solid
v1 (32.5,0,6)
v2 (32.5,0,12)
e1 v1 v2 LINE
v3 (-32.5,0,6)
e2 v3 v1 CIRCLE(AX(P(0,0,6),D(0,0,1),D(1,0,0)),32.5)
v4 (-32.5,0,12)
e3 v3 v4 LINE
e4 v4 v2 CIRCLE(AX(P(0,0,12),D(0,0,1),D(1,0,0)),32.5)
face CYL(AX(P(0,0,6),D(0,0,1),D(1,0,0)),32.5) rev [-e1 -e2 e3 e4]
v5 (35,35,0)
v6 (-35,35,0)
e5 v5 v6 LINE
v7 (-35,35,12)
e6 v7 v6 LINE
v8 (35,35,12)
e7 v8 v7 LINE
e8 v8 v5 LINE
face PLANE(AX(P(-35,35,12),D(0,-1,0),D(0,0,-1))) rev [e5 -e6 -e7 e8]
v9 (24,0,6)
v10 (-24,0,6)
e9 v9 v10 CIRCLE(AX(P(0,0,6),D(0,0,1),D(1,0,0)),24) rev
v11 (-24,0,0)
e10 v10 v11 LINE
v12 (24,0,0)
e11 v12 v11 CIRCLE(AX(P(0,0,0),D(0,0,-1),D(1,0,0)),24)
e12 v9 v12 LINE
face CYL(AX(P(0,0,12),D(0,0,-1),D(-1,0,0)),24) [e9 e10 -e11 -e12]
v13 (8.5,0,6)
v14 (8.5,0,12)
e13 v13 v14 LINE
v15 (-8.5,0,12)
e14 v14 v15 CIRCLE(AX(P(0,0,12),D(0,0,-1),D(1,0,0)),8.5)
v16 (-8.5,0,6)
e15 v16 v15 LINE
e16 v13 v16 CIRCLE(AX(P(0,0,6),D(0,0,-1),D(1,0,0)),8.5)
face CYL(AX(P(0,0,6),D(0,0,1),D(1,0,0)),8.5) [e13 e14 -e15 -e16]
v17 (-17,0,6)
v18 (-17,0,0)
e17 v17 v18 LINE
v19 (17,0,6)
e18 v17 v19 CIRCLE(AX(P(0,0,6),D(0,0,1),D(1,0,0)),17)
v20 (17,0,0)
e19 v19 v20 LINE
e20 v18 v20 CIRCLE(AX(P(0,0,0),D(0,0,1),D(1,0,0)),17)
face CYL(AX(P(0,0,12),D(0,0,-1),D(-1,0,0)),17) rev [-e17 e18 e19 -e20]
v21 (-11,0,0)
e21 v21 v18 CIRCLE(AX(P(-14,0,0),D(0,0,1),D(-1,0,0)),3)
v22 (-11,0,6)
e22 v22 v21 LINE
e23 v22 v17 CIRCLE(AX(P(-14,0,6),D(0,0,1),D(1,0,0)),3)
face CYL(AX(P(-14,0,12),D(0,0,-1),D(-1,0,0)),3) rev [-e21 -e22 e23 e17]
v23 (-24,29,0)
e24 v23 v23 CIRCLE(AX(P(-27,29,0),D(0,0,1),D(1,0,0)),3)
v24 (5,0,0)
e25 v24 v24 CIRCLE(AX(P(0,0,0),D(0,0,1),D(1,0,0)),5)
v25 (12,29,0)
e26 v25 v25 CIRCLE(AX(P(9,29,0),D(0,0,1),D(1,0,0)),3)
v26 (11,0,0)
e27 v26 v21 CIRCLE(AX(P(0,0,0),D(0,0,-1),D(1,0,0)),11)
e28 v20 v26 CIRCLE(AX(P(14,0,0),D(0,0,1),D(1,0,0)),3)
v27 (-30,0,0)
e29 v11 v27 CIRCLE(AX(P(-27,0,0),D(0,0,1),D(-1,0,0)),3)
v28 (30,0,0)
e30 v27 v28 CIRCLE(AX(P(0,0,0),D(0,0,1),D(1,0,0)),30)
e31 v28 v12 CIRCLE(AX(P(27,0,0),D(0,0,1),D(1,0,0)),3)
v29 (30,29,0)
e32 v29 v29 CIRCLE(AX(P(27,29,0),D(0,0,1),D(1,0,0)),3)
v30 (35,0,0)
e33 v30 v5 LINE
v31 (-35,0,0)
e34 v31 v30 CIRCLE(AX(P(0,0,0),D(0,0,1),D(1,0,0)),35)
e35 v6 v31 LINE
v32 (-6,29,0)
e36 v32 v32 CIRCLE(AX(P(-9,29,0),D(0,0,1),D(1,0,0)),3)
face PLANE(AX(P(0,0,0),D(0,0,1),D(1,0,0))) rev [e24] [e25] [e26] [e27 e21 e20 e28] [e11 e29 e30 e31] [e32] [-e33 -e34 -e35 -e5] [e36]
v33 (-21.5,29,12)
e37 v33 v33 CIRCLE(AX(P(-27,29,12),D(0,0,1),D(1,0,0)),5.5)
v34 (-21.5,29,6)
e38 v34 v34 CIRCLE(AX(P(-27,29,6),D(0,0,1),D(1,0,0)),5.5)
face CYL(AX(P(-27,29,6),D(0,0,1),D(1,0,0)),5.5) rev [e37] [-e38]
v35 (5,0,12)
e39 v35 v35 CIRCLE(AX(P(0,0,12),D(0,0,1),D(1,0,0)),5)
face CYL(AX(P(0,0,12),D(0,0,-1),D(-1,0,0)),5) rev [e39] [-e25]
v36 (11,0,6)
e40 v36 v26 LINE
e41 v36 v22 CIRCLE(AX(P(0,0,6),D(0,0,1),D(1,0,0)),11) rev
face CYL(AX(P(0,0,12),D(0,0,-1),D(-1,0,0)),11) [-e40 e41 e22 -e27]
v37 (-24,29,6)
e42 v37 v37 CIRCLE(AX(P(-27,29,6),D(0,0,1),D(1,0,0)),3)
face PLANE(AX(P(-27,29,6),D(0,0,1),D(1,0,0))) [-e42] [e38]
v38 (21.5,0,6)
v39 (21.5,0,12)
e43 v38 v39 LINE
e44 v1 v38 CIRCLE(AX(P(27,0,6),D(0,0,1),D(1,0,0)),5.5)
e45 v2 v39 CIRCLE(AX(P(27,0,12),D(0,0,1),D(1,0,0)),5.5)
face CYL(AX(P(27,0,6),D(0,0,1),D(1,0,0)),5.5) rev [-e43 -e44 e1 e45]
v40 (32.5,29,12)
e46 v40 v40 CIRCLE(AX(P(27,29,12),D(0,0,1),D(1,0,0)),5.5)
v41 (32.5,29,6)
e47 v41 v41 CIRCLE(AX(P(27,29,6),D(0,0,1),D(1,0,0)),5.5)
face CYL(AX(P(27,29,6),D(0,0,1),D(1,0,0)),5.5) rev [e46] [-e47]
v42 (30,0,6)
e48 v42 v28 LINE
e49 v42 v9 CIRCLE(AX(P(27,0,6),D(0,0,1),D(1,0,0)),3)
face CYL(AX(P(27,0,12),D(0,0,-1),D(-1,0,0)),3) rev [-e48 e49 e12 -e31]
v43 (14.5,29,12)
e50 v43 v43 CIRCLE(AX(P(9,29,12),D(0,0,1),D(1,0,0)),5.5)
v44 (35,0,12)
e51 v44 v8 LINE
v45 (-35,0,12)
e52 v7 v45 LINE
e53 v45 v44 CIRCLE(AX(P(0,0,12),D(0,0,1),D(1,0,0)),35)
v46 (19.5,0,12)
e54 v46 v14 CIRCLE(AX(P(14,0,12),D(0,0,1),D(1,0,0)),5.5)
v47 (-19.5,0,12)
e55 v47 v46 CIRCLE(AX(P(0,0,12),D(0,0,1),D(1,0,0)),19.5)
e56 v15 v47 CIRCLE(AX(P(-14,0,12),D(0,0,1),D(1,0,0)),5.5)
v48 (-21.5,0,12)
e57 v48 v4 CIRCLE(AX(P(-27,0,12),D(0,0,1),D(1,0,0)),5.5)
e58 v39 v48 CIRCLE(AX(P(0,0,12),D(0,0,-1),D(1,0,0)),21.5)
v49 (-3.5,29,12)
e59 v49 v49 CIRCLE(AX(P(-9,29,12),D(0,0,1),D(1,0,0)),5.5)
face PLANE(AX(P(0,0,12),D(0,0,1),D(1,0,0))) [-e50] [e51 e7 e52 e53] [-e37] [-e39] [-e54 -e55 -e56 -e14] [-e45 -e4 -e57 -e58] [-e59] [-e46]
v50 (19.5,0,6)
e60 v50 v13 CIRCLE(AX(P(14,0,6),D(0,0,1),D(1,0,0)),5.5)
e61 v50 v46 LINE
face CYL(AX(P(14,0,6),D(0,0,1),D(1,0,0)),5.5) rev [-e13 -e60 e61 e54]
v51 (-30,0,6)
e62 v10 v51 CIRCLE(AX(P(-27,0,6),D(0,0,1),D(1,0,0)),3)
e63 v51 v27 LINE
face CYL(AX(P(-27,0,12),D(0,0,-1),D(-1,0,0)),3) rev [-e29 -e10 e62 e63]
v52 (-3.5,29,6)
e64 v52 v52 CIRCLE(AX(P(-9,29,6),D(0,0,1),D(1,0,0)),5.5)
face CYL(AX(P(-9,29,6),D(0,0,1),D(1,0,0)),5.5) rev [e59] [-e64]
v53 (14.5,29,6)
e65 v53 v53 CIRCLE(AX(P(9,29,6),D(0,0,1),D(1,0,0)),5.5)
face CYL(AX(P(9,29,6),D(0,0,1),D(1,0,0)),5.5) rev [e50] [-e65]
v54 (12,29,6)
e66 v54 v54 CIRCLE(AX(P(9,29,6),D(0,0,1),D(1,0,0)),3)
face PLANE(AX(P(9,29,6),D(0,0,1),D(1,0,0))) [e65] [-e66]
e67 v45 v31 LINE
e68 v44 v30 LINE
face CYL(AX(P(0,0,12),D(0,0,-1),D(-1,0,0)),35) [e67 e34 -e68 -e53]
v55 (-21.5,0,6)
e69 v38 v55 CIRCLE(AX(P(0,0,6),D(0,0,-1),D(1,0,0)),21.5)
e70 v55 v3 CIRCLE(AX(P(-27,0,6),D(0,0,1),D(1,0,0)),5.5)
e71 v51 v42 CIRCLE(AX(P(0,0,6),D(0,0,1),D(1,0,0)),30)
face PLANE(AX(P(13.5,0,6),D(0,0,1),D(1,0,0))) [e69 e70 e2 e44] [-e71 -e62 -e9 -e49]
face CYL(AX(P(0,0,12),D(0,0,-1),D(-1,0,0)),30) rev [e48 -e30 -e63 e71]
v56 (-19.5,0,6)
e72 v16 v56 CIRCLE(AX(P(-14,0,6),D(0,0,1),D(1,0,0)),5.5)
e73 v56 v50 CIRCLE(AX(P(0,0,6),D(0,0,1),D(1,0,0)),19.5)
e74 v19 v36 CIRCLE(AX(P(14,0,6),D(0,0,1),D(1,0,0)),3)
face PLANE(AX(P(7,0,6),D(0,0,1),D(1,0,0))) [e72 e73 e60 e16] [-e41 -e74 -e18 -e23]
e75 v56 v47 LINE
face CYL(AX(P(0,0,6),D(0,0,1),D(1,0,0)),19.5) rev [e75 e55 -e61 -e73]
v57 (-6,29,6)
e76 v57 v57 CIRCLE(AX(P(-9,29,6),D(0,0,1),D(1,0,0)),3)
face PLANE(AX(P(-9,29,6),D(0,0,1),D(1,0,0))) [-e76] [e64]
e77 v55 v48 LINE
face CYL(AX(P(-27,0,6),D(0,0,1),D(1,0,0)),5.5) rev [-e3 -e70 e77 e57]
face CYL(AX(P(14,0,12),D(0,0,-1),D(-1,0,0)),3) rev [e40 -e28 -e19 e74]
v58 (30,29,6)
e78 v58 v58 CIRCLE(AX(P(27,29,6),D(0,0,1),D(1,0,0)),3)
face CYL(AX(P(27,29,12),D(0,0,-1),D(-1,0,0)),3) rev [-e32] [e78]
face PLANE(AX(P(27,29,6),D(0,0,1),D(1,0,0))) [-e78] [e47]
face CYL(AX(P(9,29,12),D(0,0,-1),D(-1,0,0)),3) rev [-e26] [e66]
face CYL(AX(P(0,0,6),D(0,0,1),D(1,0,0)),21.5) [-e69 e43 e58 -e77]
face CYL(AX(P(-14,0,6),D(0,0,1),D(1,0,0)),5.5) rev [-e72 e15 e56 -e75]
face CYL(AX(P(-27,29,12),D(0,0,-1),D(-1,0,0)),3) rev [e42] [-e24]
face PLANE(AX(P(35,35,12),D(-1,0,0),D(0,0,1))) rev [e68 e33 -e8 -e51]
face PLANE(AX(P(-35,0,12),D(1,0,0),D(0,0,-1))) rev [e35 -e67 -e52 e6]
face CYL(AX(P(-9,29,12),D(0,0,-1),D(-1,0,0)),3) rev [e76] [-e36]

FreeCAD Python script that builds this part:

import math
import FreeCAD as App
import Part
import Sketcher

V = App.Vector

doc = App.newDocument("Part")
body = doc.addObject("PartDesign::Body", "Body")

# Sketch on XY plane
sketch1 = body.newObject("Sketcher::SketchObject", "Sketch")
sketch1.AttachmentSupport = (doc.getObject("XY_Plane"), [""])
sketch1.MapMode = "FlatFace"
sketch1.addGeometry(Part.LineSegment(V(-35, 35, 0), V(-35, 0, 0)), False)
sketch1.addGeometry(Part.ArcOfCircle(Part.Circle(V(0, 0, 0), V(0, 0, 1), 35), math.radians(180), math.radians(360)), False)
sketch1.addGeometry(Part.LineSegment(V(35, 0, 0), V(35, 35, 0)), False)
sketch1.addGeometry(Part.LineSegment(V(35, 35, 0), V(-35, 35, 0)), False)
sketch1.addGeometry(Part.ArcOfCircle(Part.Circle(V(0, 0, 0), V(0, 0, 1), 30), math.radians(180), math.radians(360)), False)
sketch1.addGeometry(Part.ArcOfCircle(Part.Circle(V(-27, 0, 0), V(0, 0, 1), 3), math.radians(0), math.radians(180)), False)
sketch1.addGeometry(Part.ArcOfCircle(Part.Circle(V(0, 0, 0), V(0, 0, 1), 24), math.radians(180), math.radians(360)), False)
sketch1.addGeometry(Part.ArcOfCircle(Part.Circle(V(27, 0, 0), V(0, 0, 1), 3), math.radians(0), math.radians(180)), False)
sketch1.addGeometry(Part.ArcOfCircle(Part.Circle(V(0, 0, 0), V(0, 0, 1), 17), math.radians(180), math.radians(360)), False)
sketch1.addGeometry(Part.ArcOfCircle(Part.Circle(V(-14, 0, 0), V(0, 0, 1), 3), math.radians(0), math.radians(180)), False)
sketch1.addGeometry(Part.ArcOfCircle(Part.Circle(V(0, 0, 0), V(0, 0, 1), 11), math.radians(180), math.radians(360)), False)
sketch1.addGeometry(Part.ArcOfCircle(Part.Circle(V(14, 0, 0), V(0, 0, 1), 3), math.radians(0), math.radians(180)), False)
sketch1.addGeometry(Part.Circle(V(0, 0, 0), V(0, 0, 1), 5), False)
sketch1.addGeometry(Part.Circle(V(27, 29, 0), V(0, 0, 1), 3), False)
sketch1.addGeometry(Part.Circle(V(9, 29, 0), V(0, 0, 1), 3), False)
sketch1.addGeometry(Part.Circle(V(-9, 29, 0), V(0, 0, 1), 3), False)
sketch1.addGeometry(Part.Circle(V(-27, 29, 0), V(0, 0, 1), 3), False)
sketch1.addConstraint(Sketcher.Constraint("Tangent", 0, 2, 1, 1))
sketch1.addConstraint(Sketcher.Constraint("Tangent", 1, 2, 2, 1))
sketch1.addConstraint(Sketcher.Constraint("Coincident", 2, 2, 3, 1))
sketch1.addConstraint(Sketcher.Constraint("Coincident", 3, 2, 0, 1))
sketch1.addConstraint(Sketcher.Constraint("Tangent", 4, 1, 5, 2))
sketch1.addConstraint(Sketcher.Constraint("Tangent", 5, 1, 6, 1))
sketch1.addConstraint(Sketcher.Constraint("Tangent", 6, 2, 7, 2))
sketch1.addConstraint(Sketcher.Constraint("Tangent", 7, 1, 4, 2))
sketch1.addConstraint(Sketcher.Constraint("Tangent", 8, 1, 9, 2))
sketch1.addConstraint(Sketcher.Constraint("Tangent", 9, 1, 10, 1))
sketch1.addConstraint(Sketcher.Constraint("Tangent", 10, 2, 11, 2))
sketch1.addConstraint(Sketcher.Constraint("Tangent", 11, 1, 8, 2))
sketch1.addConstraint(Sketcher.Constraint("Vertical", 0))
sketch1.addConstraint(Sketcher.Constraint("Vertical", 2))
sketch1.addConstraint(Sketcher.Constraint("Horizontal", 3))
sketch1.addConstraint(Sketcher.Constraint("Coincident", 1, 3, -1, 1))
sketch1.addConstraint(Sketcher.Constraint("Coincident", 4, 3, -1, 1))
sketch1.addConstraint(Sketcher.Constraint("Coincident", 6, 3, -1, 1))
sketch1.addConstraint(Sketcher.Constraint("Coincident", 8, 3, -1, 1))
sketch1.addConstraint(Sketcher.Constraint("Coincident", 10, 3, -1, 1))
sketch1.addConstraint(Sketcher.Constraint("Coincident", 12, 3, -1, 1))
sketch1.addConstraint(Sketcher.Constraint("Equal", 7, 9))
sketch1.addConstraint(Sketcher.Constraint("Equal", 11, 13))
sketch1.addConstraint(Sketcher.Constraint("Equal", 13, 14))
sketch1.addConstraint(Sketcher.Constraint("Equal", 14, 15))
sketch1.addConstraint(Sketcher.Constraint("Equal", 15, 16))
sketch1.addConstraint(Sketcher.Constraint("Symmetric", 14, 3, 15, 3, -2))
sketch1.addConstraint(Sketcher.Constraint("Symmetric", 13, 3, 16, 3, -2))
sketch1.addConstraint(Sketcher.Constraint("PointOnObject", 5, 3, -1))
sketch1.addConstraint(Sketcher.Constraint("PointOnObject", 7, 3, -1))
sketch1.addConstraint(Sketcher.Constraint("PointOnObject", 9, 3, -1))
sketch1.addConstraint(Sketcher.Constraint("PointOnObject", 11, 3, -1))
sketch1.addConstraint(Sketcher.Constraint("Horizontal", 13, 3, 14, 3))
sketch1.addConstraint(Sketcher.Constraint("Vertical", 7, 3, 13, 3))
sketch1.addConstraint(Sketcher.Constraint("Diameter", 12, 10.0))
sketch1.addConstraint(Sketcher.Constraint("Diameter", 13, 6.0))
sketch1.addConstraint(Sketcher.Constraint("Radius", 1, 35.0))
sketch1.addConstraint(Sketcher.Constraint("Radius", 4, 30.0))
sketch1.addConstraint(Sketcher.Constraint("Radius", 8, 17.0))
sketch1.addConstraint(Sketcher.Constraint("DistanceY", 0, 2, 0, 1, 35.0))
sketch1.addConstraint(Sketcher.Constraint("DistanceY", -1, 1, 13, 3, 29.0))
sketch1.addConstraint(Sketcher.Constraint("DistanceX", -1, 1, 14, 3, 9.0))
pad1 = body.newObject("PartDesign::Pad", "Pad")
pad1.Profile = sketch1
pad1.Length = 12

# Sketch on XY plane
sketch2 = body.newObject("Sketcher::SketchObject", "Sketch001")
sketch2.AttachmentSupport = (doc.getObject("XY_Plane"), [""])
sketch2.MapMode = "FlatFace"
sketch2.AttachmentOffset = App.Placement(V(0, 0, 12), App.Rotation())
sketch2.addGeometry(Part.Circle(V(-27, 29, 0), V(0, 0, 1), 6), False)
sketch2.addGeometry(Part.Circle(V(-9, 29, 0), V(0, 0, 1), 6), False)
sketch2.addGeometry(Part.Circle(V(9, 29, 0), V(0, 0, 1), 6), False)
sketch2.addGeometry(Part.Circle(V(27, 29, 0), V(0, 0, 1), 6), False)
sketch2.addGeometry(Part.ArcOfCircle(Part.Circle(V(27, 0, 0), V(0, 0, 1), 6), math.radians(0), math.radians(180)), False)
sketch2.addGeometry(Part.ArcOfCircle(Part.Circle(V(0, 0, 0), V(0, 0, 1), 22), math.radians(180), math.radians(360)), False)
sketch2.addGeometry(Part.ArcOfCircle(Part.Circle(V(-27, 0, 0), V(0, 0, 1), 6), math.radians(0), math.radians(180)), False)
sketch2.addGeometry(Part.ArcOfCircle(Part.Circle(V(0, 0, 0), V(0, 0, 1), 32), math.radians(180), math.radians(360)), False)
sketch2.addGeometry(Part.ArcOfCircle(Part.Circle(V(14, 0, 0), V(0, 0, 1), 6), math.radians(0), math.radians(180)), False)
sketch2.addGeometry(Part.ArcOfCircle(Part.Circle(V(0, 0, 0), V(0, 0, 1), 8), math.radians(180), math.radians(360)), False)
sketch2.addGeometry(Part.ArcOfCircle(Part.Circle(V(-14, 0, 0), V(0, 0, 1), 6), math.radians(0), math.radians(180)), False)
sketch2.addGeometry(Part.ArcOfCircle(Part.Circle(V(0, 0, 0), V(0, 0, 1), 20), math.radians(180), math.radians(360)), False)
sketch2.addConstraint(Sketcher.Constraint("Tangent", 4, 2, 5, 2))
sketch2.addConstraint(Sketcher.Constraint("Tangent", 5, 1, 6, 1))
sketch2.addConstraint(Sketcher.Constraint("Tangent", 6, 2, 7, 1))
sketch2.addConstraint(Sketcher.Constraint("Tangent", 7, 2, 4, 1))
sketch2.addConstraint(Sketcher.Constraint("Tangent", 8, 2, 9, 2))
sketch2.addConstraint(Sketcher.Constraint("Tangent", 9, 1, 10, 1))
sketch2.addConstraint(Sketcher.Constraint("Tangent", 10, 2, 11, 1))
sketch2.addConstraint(Sketcher.Constraint("Tangent", 11, 2, 8, 1))
sketch2.addConstraint(Sketcher.Constraint("Coincident", 5, 3, -1, 1))
sketch2.addConstraint(Sketcher.Constraint("Coincident", 7, 3, -1, 1))
sketch2.addConstraint(Sketcher.Constraint("Coincident", 9, 3, -1, 1))
sketch2.addConstraint(Sketcher.Constraint("Coincident", 11, 3, -1, 1))
sketch2.addConstraint(Sketcher.Constraint("Equal", 0, 1))
sketch2.addConstraint(Sketcher.Constraint("Equal", 1, 2))
sketch2.addConstraint(Sketcher.Constraint("Equal", 2, 3))
sketch2.addConstraint(Sketcher.Constraint("Equal", 3, 4))
sketch2.addConstraint(Sketcher.Constraint("Equal", 6, 8))
sketch2.addConstraint(Sketcher.Constraint("Symmetric", 1, 3, 2, 3, -2))
sketch2.addConstraint(Sketcher.Constraint("Symmetric", 0, 3, 3, 3, -2))
sketch2.addConstraint(Sketcher.Constraint("PointOnObject", 4, 3, -1))
sketch2.addConstraint(Sketcher.Constraint("PointOnObject", 6, 3, -1))
sketch2.addConstraint(Sketcher.Constraint("PointOnObject", 8, 3, -1))
sketch2.addConstraint(Sketcher.Constraint("PointOnObject", 10, 3, -1))
sketch2.addConstraint(Sketcher.Constraint("Horizontal", 0, 3, 1, 3))
sketch2.addConstraint(Sketcher.Constraint("Vertical", 3, 3, 4, 3))
sketch2.addConstraint(Sketcher.Constraint("Diameter", 0, 11.0))
sketch2.addConstraint(Sketcher.Constraint("Radius", 5, 21.5))
sketch2.addConstraint(Sketcher.Constraint("Radius", 9, 8.5))
sketch2.addConstraint(Sketcher.Constraint("DistanceY", -1, 1, 0, 3, 29.0))
sketch2.addConstraint(Sketcher.Constraint("DistanceX", 1, 3, -1, 1, 9.0))
pocket1 = body.newObject("PartDesign::Pocket", "Pocket")
pocket1.Profile = sketch2
pocket1.Length = 6

doc.recompute()
